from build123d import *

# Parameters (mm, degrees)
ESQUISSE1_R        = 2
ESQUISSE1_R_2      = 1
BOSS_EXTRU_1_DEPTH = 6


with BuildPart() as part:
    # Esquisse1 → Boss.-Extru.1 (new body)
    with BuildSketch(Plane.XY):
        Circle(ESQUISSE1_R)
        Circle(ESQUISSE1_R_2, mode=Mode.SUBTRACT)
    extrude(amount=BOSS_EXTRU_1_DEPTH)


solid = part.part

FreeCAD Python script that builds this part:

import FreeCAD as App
import Part
import Sketcher

V = App.Vector

doc = App.newDocument("Part")
params = doc.addObject("Spreadsheet::Sheet", "Params")
for row, (alias, value) in enumerate([
    ("sketch1_diameter", "4 mm"),
    ("sketch1_diameter2", "2 mm"),
    ("pad1_length", "6 mm"),
], start=1):
    params.set(f"A{row}", alias)
    params.set(f"B{row}", "=" + value)
    params.setAlias(f"B{row}", alias)

body = doc.addObject("PartDesign::Body", "Body")

# Sketch on XY plane
sketch1 = body.newObject("Sketcher::SketchObject", "Sketch")
sketch1.AttachmentSupport = (doc.getObject("XY_Plane"), [""])
sketch1.MapMode = "FlatFace"
sketch1.addGeometry([
    Part.Circle(V(0, 0, 0), V(0, 0, 1), 2),
    Part.Circle(V(0, 0, 0), V(0, 0, 1), 1),
], False)
sketch1.addConstraint([
    Sketcher.Constraint("Coincident", 0, 3, -1, 1),
    Sketcher.Constraint("Coincident", 1, 3, -1, 1),
    Sketcher.Constraint("Diameter", 0, 4.0),
    Sketcher.Constraint("Diameter", 1, 2.0),
])
sketch1.setExpression("Constraints[2]", "Params.sketch1_diameter")
sketch1.setExpression("Constraints[3]", "Params.sketch1_diameter2")
pad1 = body.newObject("PartDesign::Pad", "Pad")
pad1.Profile = sketch1
pad1.setExpression("Length", "Params.pad1_length")

doc.recompute()
